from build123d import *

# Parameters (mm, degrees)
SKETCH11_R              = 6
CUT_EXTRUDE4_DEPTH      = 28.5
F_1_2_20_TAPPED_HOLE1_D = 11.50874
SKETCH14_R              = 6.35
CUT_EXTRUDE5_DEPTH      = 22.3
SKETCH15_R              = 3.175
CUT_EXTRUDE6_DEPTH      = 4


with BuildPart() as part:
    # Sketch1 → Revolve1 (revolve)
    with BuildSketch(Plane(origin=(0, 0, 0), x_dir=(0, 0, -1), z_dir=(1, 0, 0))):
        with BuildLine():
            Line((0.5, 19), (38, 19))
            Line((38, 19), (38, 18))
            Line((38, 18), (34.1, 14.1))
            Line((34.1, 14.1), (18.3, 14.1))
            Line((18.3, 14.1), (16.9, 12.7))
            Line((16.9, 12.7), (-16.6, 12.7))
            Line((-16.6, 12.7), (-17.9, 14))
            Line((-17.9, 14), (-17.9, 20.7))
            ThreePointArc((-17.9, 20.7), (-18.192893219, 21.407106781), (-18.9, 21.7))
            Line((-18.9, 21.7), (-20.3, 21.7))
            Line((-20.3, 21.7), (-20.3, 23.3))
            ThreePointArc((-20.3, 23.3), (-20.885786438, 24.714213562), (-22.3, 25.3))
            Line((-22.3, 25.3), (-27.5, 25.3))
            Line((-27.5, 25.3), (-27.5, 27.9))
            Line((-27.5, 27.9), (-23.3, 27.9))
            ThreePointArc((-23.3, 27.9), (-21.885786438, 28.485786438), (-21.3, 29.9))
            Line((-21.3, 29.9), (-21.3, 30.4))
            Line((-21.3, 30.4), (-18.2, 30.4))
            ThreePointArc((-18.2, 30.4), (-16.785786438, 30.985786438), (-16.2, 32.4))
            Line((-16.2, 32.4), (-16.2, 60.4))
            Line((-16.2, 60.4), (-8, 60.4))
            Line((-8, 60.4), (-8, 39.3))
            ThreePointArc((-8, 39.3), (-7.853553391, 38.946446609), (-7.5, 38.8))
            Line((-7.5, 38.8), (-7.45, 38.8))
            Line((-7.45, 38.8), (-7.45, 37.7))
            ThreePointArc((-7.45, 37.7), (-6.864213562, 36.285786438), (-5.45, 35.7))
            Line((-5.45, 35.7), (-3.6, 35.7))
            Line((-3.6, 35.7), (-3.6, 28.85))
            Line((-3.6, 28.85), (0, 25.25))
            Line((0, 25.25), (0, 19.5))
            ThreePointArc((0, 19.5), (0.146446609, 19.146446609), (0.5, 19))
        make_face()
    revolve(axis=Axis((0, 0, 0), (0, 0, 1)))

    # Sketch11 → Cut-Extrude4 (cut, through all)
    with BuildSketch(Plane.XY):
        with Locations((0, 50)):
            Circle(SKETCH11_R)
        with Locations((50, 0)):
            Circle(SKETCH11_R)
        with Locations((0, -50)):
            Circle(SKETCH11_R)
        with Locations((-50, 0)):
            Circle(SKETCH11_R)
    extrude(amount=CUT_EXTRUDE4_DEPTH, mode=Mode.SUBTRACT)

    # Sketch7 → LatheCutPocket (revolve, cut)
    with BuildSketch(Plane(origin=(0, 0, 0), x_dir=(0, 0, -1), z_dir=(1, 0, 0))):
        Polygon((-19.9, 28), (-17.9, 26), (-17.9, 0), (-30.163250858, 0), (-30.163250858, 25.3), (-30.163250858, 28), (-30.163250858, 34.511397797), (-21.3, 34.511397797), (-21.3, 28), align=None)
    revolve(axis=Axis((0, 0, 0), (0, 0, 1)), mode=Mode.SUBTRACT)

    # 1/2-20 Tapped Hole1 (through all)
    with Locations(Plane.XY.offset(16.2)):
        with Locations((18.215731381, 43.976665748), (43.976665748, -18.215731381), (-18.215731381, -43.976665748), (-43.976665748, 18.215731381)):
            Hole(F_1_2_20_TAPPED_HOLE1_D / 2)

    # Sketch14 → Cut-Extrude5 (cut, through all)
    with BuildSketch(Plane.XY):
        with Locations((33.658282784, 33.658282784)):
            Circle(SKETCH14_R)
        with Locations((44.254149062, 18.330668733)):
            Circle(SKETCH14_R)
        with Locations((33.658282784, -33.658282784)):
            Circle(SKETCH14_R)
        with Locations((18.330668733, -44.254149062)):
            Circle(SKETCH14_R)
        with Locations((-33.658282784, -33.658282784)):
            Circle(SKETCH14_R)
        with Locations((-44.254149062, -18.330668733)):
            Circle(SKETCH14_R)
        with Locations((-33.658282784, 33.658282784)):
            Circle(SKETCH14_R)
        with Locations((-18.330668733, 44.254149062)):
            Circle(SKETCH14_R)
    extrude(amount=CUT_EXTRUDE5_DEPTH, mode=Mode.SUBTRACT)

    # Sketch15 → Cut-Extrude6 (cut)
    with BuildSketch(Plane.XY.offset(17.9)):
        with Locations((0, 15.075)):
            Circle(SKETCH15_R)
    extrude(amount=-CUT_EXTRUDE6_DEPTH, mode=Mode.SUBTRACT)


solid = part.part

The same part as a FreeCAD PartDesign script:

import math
import FreeCAD as App
import Part
import Sketcher

V = App.Vector
Q = App.Units.Quantity


def add_polygon(sketch, points):
    """Adds a closed chain of lines whose ends are joined by coincident constraints."""
    first, n = sketch.GeometryCount, len(points)
    for a, b in zip(points, points[1:] + points[:1]):
        sketch.addGeometry(Part.LineSegment(App.Vector(*a, 0), App.Vector(*b, 0)), False)
    for i in range(n):
        sketch.addConstraint(Sketcher.Constraint("Coincident", first + i, 2, first + (i + 1) % n, 1))

doc = App.newDocument("Part")
body = doc.addObject("PartDesign::Body", "Body")

sketch1 = body.newObject("Sketcher::SketchObject", "Sketch")
sketch1.AttachmentSupport = (doc.getObject("YZ_Plane"), [""])
sketch1.MapMode = "FlatFace"
sketch1.addGeometry([
    Part.LineSegment(V(19, -38, 0), V(19, -0.5, 0)),
    Part.ArcOfCircle(Part.Circle(V(19.5, -0.5, 0), V(0, 0, 1), 0.5), math.radians(90), math.radians(180)),
    Part.LineSegment(V(19.5, 0, 0), V(25.25, 0, 0)),
    Part.LineSegment(V(25.25, 0, 0), V(28.85, 3.6, 0)),
    Part.LineSegment(V(28.85, 3.6, 0), V(35.7, 3.6, 0)),
    Part.LineSegment(V(35.7, 3.6, 0), V(35.7, 5.45, 0)),
    Part.ArcOfCircle(Part.Circle(V(37.7, 5.45, 0), V(0, 0, 1), 2), math.radians(90), math.radians(180)),
    Part.LineSegment(V(37.7, 7.45, 0), V(38.8, 7.45, 0)),
    Part.LineSegment(V(38.8, 7.45, 0), V(38.8, 7.5, 0)),
    Part.ArcOfCircle(Part.Circle(V(39.3, 7.5, 0), V(0, 0, 1), 0.5), math.radians(90), math.radians(180)),
    Part.LineSegment(V(39.3, 8, 0), V(60.4, 8, 0)),
    Part.LineSegment(V(60.4, 8, 0), V(60.4, 16.2, 0)),
    Part.LineSegment(V(60.4, 16.2, 0), V(32.4, 16.2, 0)),
    Part.ArcOfCircle(Part.Circle(V(32.4, 18.2, 0), V(0, 0, 1), 2), math.radians(-180), math.radians(-90)),
    Part.LineSegment(V(30.4, 18.2, 0), V(30.4, 21.3, 0)),
    Part.LineSegment(V(30.4, 21.3, 0), V(29.9, 21.3, 0)),
    Part.ArcOfCircle(Part.Circle(V(29.9, 23.3, 0), V(0, 0, 1), 2), math.radians(-180), math.radians(-90)),
    Part.LineSegment(V(27.9, 23.3, 0), V(27.9, 27.5, 0)),
    Part.LineSegment(V(27.9, 27.5, 0), V(25.3, 27.5, 0)),
    Part.LineSegment(V(25.3, 27.5, 0), V(25.3, 22.3, 0)),
    Part.ArcOfCircle(Part.Circle(V(23.3, 22.3, 0), V(0, 0, 1), 2), math.radians(-90), math.radians(0)),
    Part.LineSegment(V(23.3, 20.3, 0), V(21.7, 20.3, 0)),
    Part.LineSegment(V(21.7, 20.3, 0), V(21.7, 18.9, 0)),
    Part.ArcOfCircle(Part.Circle(V(20.7, 18.9, 0), V(0, 0, 1), 1), math.radians(-90), math.radians(0)),
    Part.LineSegment(V(20.7, 17.9, 0), V(14, 17.9, 0)),
    Part.LineSegment(V(14, 17.9, 0), V(12.7, 16.6, 0)),
    Part.LineSegment(V(12.7, 16.6, 0), V(12.7, -16.9, 0)),
    Part.LineSegment(V(12.7, -16.9, 0), V(14.1, -18.3, 0)),
    Part.LineSegment(V(14.1, -18.3, 0), V(14.1, -34.1, 0)),
    Part.LineSegment(V(14.1, -34.1, 0), V(18, -38, 0)),
    Part.LineSegment(V(18, -38, 0), V(19, -38, 0)),
], False)
sketch1.addConstraint([
    Sketcher.Constraint("Tangent", 0, 2, 1, 2),
    Sketcher.Constraint("Tangent", 1, 1, 2, 1),
    Sketcher.Constraint("Coincident", 2, 2, 3, 1),
    Sketcher.Constraint("Coincident", 3, 2, 4, 1),
    Sketcher.Constraint("Coincident", 4, 2, 5, 1),
    Sketcher.Constraint("Tangent", 5, 2, 6, 2),
    Sketcher.Constraint("Tangent", 6, 1, 7, 1),
    Sketcher.Constraint("Coincident", 7, 2, 8, 1),
    Sketcher.Constraint("Tangent", 8, 2, 9, 2),
    Sketcher.Constraint("Tangent", 9, 1, 10, 1),
    Sketcher.Constraint("Coincident", 10, 2, 11, 1),
    Sketcher.Constraint("Coincident", 11, 2, 12, 1),
    Sketcher.Constraint("Tangent", 12, 2, 13, 2),
    Sketcher.Constraint("Tangent", 13, 1, 14, 1),
    Sketcher.Constraint("Coincident", 14, 2, 15, 1),
    Sketcher.Constraint("Tangent", 15, 2, 16, 2),
    Sketcher.Constraint("Tangent", 16, 1, 17, 1),
    Sketcher.Constraint("Coincident", 17, 2, 18, 1),
    Sketcher.Constraint("Coincident", 18, 2, 19, 1),
    Sketcher.Constraint("Tangent", 19, 2, 20, 2),
    Sketcher.Constraint("Tangent", 20, 1, 21, 1),
    Sketcher.Constraint("Coincident", 21, 2, 22, 1),
    Sketcher.Constraint("Tangent", 22, 2, 23, 2),
    Sketcher.Constraint("Tangent", 23, 1, 24, 1),
    Sketcher.Constraint("Coincident", 24, 2, 25, 1),
    Sketcher.Constraint("Coincident", 25, 2, 26, 1),
    Sketcher.Constraint("Coincident", 26, 2, 27, 1),
    Sketcher.Constraint("Coincident", 27, 2, 28, 1),
    Sketcher.Constraint("Coincident", 28, 2, 29, 1),
    Sketcher.Constraint("Coincident", 29, 2, 30, 1),
    Sketcher.Constraint("Coincident", 30, 2, 0, 1),
    Sketcher.Constraint("Vertical", 0),
    Sketcher.Constraint("Horizontal", 2),
    Sketcher.Constraint("Horizontal", 4),
    Sketcher.Constraint("Vertical", 5),
    Sketcher.Constraint("Horizontal", 7),
    Sketcher.Constraint("Vertical", 8),
    Sketcher.Constraint("Horizontal", 10),
    Sketcher.Constraint("Vertical", 11),
    Sketcher.Constraint("Horizontal", 12),
    Sketcher.Constraint("Vertical", 14),
    Sketcher.Constraint("Horizontal", 15),
    Sketcher.Constraint("Vertical", 17),
    Sketcher.Constraint("Horizontal", 18),
    Sketcher.Constraint("Vertical", 19),
    Sketcher.Constraint("Horizontal", 21),
    Sketcher.Constraint("Vertical", 22),
    Sketcher.Constraint("Horizontal", 24),
    Sketcher.Constraint("Vertical", 26),
    Sketcher.Constraint("Vertical", 28),
    Sketcher.Constraint("Horizontal", 30),
    Sketcher.Constraint("Equal", 1, 9),
    Sketcher.Constraint("Equal", 6, 13),
    Sketcher.Constraint("Equal", 13, 16),
    Sketcher.Constraint("Equal", 16, 20),
    Sketcher.Constraint("PointOnObject", 1, 1, -1),
    Sketcher.Constraint("Parallel", 3, 25),
    Sketcher.Constraint("Perpendicular", 25, 27),
    Sketcher.Constraint("Parallel", 27, 29),
    Sketcher.Constraint("Radius", 6, 2.0),
    Sketcher.Constraint("Radius", 23, 1.0),
    Sketcher.Constraint("Radius", 1, 0.5),
    Sketcher.Constraint("DistanceX", 12, 2, 12, 1, 28.0),
    Sketcher.Constraint("DistanceX", 30, 1, 30, 2, 1.0),
    Sketcher.Constraint("Angle", 3, Q("45 deg")),
    Sketcher.Constraint("DistanceX", 7, 1, 7, 2, 1.1),
    Sketcher.Constraint("DistanceX", 10, 1, 10, 2, 21.1),
    Sketcher.Constraint("DistanceX", 15, 2, 15, 1, 0.5),
    Sketcher.Constraint("DistanceX", 18, 2, 18, 1, 2.6),
    Sketcher.Constraint("DistanceX", 21, 2, 21, 1, 1.6),
    Sketcher.Constraint("DistanceX", 24, 2, 24, 1, 6.7),
    Sketcher.Constraint("DistanceY", 0, 1, 0, 2, 37.5),
    Sketcher.Constraint("DistanceY", 11, 1, 11, 2, 8.2),
    Sketcher.Constraint("DistanceY", 14, 1, 14, 2, 3.1),
    Sketcher.Constraint("DistanceY", 17, 1, 17, 2, 4.2),
    Sketcher.Constraint("DistanceY", 19, 2, 19, 1, 5.2),
    Sketcher.Constraint("DistanceY", 22, 2, 22, 1, 1.4),
    Sketcher.Constraint("DistanceY", 26, 2, 26, 1, 33.5),
    Sketcher.Constraint("DistanceY", 28, 2, 28, 1, 15.8),
    Sketcher.Constraint("DistanceX", -1, 1, 0, 2, 19.0),
    Sketcher.Constraint("DistanceY", -1, 1, 9, 1, 8.0),
    Sketcher.Constraint("DistanceX", -1, 1, 24, 2, 14.0),
    Sketcher.Constraint("DistanceX", 2, 1, 2, 2, 5.75),
    Sketcher.Constraint("DistanceX", 4, 1, 4, 2, 6.85),
    Sketcher.Constraint("DistanceY", 5, 1, 5, 2, 1.85),
    Sketcher.Constraint("DistanceX", -1, 1, 27, 2, 14.1),
])
revolution = body.newObject("PartDesign::Revolution", "Revolution")
revolution.Profile = sketch1
revolution.ReferenceAxis = (sketch1, ["V_Axis"])
revolution.Angle = 360

sketch2 = body.newObject("Sketcher::SketchObject", "Sketch001")
sketch2.AttachmentSupport = (doc.getObject("XY_Plane"), [""])
sketch2.MapMode = "FlatFace"
sketch2.addGeometry([
    Part.Circle(V(0, 50, 0), V(0, 0, 1), 6),
    Part.Circle(V(50, 0, 0), V(0, 0, 1), 6),
    Part.Circle(V(0, -50, 0), V(0, 0, 1), 6),
    Part.Circle(V(-50, 0, 0), V(0, 0, 1), 6),
], False)
sketch2.addConstraint([
    Sketcher.Constraint("Equal", 0, 1),
    Sketcher.Constraint("Equal", 1, 2),
    Sketcher.Constraint("Equal", 2, 3),
    Sketcher.Constraint("Symmetric", 0, 3, 2, 3, -1, 1),
    Sketcher.Constraint("Symmetric", 1, 3, 3, 3, -1, 1),
    Sketcher.Constraint("PointOnObject", 0, 3, -2),
    Sketcher.Constraint("PointOnObject", 1, 3, -1),
    Sketcher.Constraint("Diameter", 0, 12.0),
    Sketcher.Constraint("DistanceY", -1, 1, 0, 3, 50.0),
    Sketcher.Constraint("DistanceX", -1, 1, 1, 3, 50.0),
])
pocket1 = body.newObject("PartDesign::Pocket", "Pocket")
pocket1.Profile = sketch2
pocket1.Type = "ThroughAll"
pocket1.Reversed = True

sketch3 = body.newObject("Sketcher::SketchObject", "Sketch002")
sketch3.AttachmentSupport = (doc.getObject("YZ_Plane"), [""])
sketch3.MapMode = "FlatFace"
add_polygon(sketch3, [(26, 17.9), (28, 19.9), (28, 21.3), (34.511398, 21.3), (34.511398, 30.163251), (0, 30.163251), (0, 17.9)])
sketch3.addConstraint([
    Sketcher.Constraint("Vertical", 1),
    Sketcher.Constraint("Horizontal", 2),
    Sketcher.Constraint("Vertical", 3),
    Sketcher.Constraint("Horizontal", 4),
    Sketcher.Constraint("Vertical", 5),
    Sketcher.Constraint("Horizontal", 6),
    Sketcher.Constraint("PointOnObject", 4, 2, -2),
    Sketcher.Constraint("DistanceX", 6, 1, 6, 2, 26.0),
    Sketcher.Constraint("Angle", 0, Q("45 deg")),
    Sketcher.Constraint("DistanceY", 1, 1, 1, 2, 1.4),
    Sketcher.Constraint("DistanceX", -1, 1, 0, 2, 28.0),
    Sketcher.Constraint("DistanceY", -1, 1, 0, 2, 19.9),
    Sketcher.Constraint("DistanceY", 3, 1, 3, 2, 8.863251),
    Sketcher.Constraint("DistanceX", 2, 1, 2, 2, 6.511398),
])
groove = body.newObject("PartDesign::Groove", "Groove")
groove.Profile = sketch3
groove.ReferenceAxis = (sketch3, ["V_Axis"])
groove.Angle = 360

sketch4 = body.newObject("Sketcher::SketchObject", "Sketch003")
sketch4.AttachmentSupport = (doc.getObject("XY_Plane"), [""])
sketch4.MapMode = "FlatFace"
sketch4.AttachmentOffset = App.Placement(V(0, 0, 16.2), App.Rotation())
sketch4.addGeometry([
    Part.Circle(V(18.215731, 43.976666, 0), V(0, 0, 1), 5.75437),
    Part.Circle(V(43.976666, -18.215731, 0), V(0, 0, 1), 5.75437),
    Part.Circle(V(-18.215731, -43.976666, 0), V(0, 0, 1), 5.75437),
    Part.Circle(V(-43.976666, 18.215731, 0), V(0, 0, 1), 5.75437),
], False)
sketch4.addConstraint([
    Sketcher.Constraint("Equal", 0, 1),
    Sketcher.Constraint("Equal", 1, 2),
    Sketcher.Constraint("Equal", 2, 3),
    Sketcher.Constraint("Symmetric", 0, 3, 2, 3, -1, 1),
    Sketcher.Constraint("Symmetric", 1, 3, 3, 3, -1, 1),
    Sketcher.Constraint("Diameter", 0, 11.50874),
    Sketcher.Constraint("DistanceX", -1, 1, 0, 3, 18.215731),
    Sketcher.Constraint("DistanceY", 1, 3, -1, 1, 18.215731),
    Sketcher.Constraint("DistanceY", 2, 3, 0, 3, 87.953331),
    Sketcher.Constraint("DistanceX", 3, 3, 1, 3, 87.953331),
])
doc.recompute()
hole = body.newObject("PartDesign::Hole", "Hole")
hole.Profile = sketch4
hole.ThreadType = "None"
hole.Diameter = 11.50874
hole.DepthType = "ThroughAll"

sketch5 = body.newObject("Sketcher::SketchObject", "Sketch004")
sketch5.AttachmentSupport = (doc.getObject("XY_Plane"), [""])
sketch5.MapMode = "FlatFace"
sketch5.addGeometry([
    Part.Circle(V(33.658283, 33.658283, 0), V(0, 0, 1), 6.35),
    Part.Circle(V(44.254149, 18.330669, 0), V(0, 0, 1), 6.35),
    Part.Circle(V(33.658283, -33.658283, 0), V(0, 0, 1), 6.35),
    Part.Circle(V(18.330669, -44.254149, 0), V(0, 0, 1), 6.35),
    Part.Circle(V(-33.658283, -33.658283, 0), V(0, 0, 1), 6.35),
    Part.Circle(V(-44.254149, -18.330669, 0), V(0, 0, 1), 6.35),
    Part.Circle(V(-33.658283, 33.658283, 0), V(0, 0, 1), 6.35),
    Part.Circle(V(-18.330669, 44.254149, 0), V(0, 0, 1), 6.35),
], False)
sketch5.addConstraint([
    Sketcher.Constraint("Equal", 0, 1),
    Sketcher.Constraint("Equal", 1, 2),
    Sketcher.Constraint("Equal", 2, 3),
    Sketcher.Constraint("Equal", 3, 4),
    Sketcher.Constraint("Equal", 4, 5),
    Sketcher.Constraint("Equal", 5, 6),
    Sketcher.Constraint("Equal", 6, 7),
    Sketcher.Constraint("Symmetric", 0, 3, 4, 3, -1, 1),
    Sketcher.Constraint("Symmetric", 1, 3, 5, 3, -1, 1),
    Sketcher.Constraint("Symmetric", 2, 3, 6, 3, -1, 1),
    Sketcher.Constraint("Symmetric", 3, 3, 7, 3, -1, 1),
    Sketcher.Constraint("Symmetric", 2, 3, 4, 3, -2),
    Sketcher.Constraint("Diameter", 0, 12.7),
    Sketcher.Constraint("DistanceX", 5, 3, 1, 3, 88.508298),
    Sketcher.Constraint("DistanceY", -1, 1, 1, 3, 18.330669),
    Sketcher.Constraint("DistanceX", -1, 1, 3, 3, 18.330669),
    Sketcher.Constraint("DistanceY", 3, 3, -1, 1, 44.254149),
    Sketcher.Constraint("DistanceY", 2, 3, 1, 3, 51.988952),
    Sketcher.Constraint("DistanceX", 4, 3, 3, 3, 51.988952),
])
pocket2 = body.newObject("PartDesign::Pocket", "Pocket001")
pocket2.Profile = sketch5
pocket2.Type = "ThroughAll"
pocket2.Reversed = True

sketch6 = body.newObject("Sketcher::SketchObject", "Sketch005")
sketch6.AttachmentSupport = (doc.getObject("XY_Plane"), [""])
sketch6.MapMode = "FlatFace"
sketch6.AttachmentOffset = App.Placement(V(0, 0, 17.9), App.Rotation())
sketch6.addGeometry(Part.Circle(V(0, 15.075, 0), V(0, 0, 1), 3.175), False)
sketch6.addConstraint([
    Sketcher.Constraint("PointOnObject", 0, 3, -2),
    Sketcher.Constraint("Diameter", 0, 6.35),
    Sketcher.Constraint("DistanceY", -1, 1, 0, 3, 15.075),
])
pocket3 = body.newObject("PartDesign::Pocket", "Pocket002")
pocket3.Profile = sketch6
pocket3.Length = 4

doc.recompute()
